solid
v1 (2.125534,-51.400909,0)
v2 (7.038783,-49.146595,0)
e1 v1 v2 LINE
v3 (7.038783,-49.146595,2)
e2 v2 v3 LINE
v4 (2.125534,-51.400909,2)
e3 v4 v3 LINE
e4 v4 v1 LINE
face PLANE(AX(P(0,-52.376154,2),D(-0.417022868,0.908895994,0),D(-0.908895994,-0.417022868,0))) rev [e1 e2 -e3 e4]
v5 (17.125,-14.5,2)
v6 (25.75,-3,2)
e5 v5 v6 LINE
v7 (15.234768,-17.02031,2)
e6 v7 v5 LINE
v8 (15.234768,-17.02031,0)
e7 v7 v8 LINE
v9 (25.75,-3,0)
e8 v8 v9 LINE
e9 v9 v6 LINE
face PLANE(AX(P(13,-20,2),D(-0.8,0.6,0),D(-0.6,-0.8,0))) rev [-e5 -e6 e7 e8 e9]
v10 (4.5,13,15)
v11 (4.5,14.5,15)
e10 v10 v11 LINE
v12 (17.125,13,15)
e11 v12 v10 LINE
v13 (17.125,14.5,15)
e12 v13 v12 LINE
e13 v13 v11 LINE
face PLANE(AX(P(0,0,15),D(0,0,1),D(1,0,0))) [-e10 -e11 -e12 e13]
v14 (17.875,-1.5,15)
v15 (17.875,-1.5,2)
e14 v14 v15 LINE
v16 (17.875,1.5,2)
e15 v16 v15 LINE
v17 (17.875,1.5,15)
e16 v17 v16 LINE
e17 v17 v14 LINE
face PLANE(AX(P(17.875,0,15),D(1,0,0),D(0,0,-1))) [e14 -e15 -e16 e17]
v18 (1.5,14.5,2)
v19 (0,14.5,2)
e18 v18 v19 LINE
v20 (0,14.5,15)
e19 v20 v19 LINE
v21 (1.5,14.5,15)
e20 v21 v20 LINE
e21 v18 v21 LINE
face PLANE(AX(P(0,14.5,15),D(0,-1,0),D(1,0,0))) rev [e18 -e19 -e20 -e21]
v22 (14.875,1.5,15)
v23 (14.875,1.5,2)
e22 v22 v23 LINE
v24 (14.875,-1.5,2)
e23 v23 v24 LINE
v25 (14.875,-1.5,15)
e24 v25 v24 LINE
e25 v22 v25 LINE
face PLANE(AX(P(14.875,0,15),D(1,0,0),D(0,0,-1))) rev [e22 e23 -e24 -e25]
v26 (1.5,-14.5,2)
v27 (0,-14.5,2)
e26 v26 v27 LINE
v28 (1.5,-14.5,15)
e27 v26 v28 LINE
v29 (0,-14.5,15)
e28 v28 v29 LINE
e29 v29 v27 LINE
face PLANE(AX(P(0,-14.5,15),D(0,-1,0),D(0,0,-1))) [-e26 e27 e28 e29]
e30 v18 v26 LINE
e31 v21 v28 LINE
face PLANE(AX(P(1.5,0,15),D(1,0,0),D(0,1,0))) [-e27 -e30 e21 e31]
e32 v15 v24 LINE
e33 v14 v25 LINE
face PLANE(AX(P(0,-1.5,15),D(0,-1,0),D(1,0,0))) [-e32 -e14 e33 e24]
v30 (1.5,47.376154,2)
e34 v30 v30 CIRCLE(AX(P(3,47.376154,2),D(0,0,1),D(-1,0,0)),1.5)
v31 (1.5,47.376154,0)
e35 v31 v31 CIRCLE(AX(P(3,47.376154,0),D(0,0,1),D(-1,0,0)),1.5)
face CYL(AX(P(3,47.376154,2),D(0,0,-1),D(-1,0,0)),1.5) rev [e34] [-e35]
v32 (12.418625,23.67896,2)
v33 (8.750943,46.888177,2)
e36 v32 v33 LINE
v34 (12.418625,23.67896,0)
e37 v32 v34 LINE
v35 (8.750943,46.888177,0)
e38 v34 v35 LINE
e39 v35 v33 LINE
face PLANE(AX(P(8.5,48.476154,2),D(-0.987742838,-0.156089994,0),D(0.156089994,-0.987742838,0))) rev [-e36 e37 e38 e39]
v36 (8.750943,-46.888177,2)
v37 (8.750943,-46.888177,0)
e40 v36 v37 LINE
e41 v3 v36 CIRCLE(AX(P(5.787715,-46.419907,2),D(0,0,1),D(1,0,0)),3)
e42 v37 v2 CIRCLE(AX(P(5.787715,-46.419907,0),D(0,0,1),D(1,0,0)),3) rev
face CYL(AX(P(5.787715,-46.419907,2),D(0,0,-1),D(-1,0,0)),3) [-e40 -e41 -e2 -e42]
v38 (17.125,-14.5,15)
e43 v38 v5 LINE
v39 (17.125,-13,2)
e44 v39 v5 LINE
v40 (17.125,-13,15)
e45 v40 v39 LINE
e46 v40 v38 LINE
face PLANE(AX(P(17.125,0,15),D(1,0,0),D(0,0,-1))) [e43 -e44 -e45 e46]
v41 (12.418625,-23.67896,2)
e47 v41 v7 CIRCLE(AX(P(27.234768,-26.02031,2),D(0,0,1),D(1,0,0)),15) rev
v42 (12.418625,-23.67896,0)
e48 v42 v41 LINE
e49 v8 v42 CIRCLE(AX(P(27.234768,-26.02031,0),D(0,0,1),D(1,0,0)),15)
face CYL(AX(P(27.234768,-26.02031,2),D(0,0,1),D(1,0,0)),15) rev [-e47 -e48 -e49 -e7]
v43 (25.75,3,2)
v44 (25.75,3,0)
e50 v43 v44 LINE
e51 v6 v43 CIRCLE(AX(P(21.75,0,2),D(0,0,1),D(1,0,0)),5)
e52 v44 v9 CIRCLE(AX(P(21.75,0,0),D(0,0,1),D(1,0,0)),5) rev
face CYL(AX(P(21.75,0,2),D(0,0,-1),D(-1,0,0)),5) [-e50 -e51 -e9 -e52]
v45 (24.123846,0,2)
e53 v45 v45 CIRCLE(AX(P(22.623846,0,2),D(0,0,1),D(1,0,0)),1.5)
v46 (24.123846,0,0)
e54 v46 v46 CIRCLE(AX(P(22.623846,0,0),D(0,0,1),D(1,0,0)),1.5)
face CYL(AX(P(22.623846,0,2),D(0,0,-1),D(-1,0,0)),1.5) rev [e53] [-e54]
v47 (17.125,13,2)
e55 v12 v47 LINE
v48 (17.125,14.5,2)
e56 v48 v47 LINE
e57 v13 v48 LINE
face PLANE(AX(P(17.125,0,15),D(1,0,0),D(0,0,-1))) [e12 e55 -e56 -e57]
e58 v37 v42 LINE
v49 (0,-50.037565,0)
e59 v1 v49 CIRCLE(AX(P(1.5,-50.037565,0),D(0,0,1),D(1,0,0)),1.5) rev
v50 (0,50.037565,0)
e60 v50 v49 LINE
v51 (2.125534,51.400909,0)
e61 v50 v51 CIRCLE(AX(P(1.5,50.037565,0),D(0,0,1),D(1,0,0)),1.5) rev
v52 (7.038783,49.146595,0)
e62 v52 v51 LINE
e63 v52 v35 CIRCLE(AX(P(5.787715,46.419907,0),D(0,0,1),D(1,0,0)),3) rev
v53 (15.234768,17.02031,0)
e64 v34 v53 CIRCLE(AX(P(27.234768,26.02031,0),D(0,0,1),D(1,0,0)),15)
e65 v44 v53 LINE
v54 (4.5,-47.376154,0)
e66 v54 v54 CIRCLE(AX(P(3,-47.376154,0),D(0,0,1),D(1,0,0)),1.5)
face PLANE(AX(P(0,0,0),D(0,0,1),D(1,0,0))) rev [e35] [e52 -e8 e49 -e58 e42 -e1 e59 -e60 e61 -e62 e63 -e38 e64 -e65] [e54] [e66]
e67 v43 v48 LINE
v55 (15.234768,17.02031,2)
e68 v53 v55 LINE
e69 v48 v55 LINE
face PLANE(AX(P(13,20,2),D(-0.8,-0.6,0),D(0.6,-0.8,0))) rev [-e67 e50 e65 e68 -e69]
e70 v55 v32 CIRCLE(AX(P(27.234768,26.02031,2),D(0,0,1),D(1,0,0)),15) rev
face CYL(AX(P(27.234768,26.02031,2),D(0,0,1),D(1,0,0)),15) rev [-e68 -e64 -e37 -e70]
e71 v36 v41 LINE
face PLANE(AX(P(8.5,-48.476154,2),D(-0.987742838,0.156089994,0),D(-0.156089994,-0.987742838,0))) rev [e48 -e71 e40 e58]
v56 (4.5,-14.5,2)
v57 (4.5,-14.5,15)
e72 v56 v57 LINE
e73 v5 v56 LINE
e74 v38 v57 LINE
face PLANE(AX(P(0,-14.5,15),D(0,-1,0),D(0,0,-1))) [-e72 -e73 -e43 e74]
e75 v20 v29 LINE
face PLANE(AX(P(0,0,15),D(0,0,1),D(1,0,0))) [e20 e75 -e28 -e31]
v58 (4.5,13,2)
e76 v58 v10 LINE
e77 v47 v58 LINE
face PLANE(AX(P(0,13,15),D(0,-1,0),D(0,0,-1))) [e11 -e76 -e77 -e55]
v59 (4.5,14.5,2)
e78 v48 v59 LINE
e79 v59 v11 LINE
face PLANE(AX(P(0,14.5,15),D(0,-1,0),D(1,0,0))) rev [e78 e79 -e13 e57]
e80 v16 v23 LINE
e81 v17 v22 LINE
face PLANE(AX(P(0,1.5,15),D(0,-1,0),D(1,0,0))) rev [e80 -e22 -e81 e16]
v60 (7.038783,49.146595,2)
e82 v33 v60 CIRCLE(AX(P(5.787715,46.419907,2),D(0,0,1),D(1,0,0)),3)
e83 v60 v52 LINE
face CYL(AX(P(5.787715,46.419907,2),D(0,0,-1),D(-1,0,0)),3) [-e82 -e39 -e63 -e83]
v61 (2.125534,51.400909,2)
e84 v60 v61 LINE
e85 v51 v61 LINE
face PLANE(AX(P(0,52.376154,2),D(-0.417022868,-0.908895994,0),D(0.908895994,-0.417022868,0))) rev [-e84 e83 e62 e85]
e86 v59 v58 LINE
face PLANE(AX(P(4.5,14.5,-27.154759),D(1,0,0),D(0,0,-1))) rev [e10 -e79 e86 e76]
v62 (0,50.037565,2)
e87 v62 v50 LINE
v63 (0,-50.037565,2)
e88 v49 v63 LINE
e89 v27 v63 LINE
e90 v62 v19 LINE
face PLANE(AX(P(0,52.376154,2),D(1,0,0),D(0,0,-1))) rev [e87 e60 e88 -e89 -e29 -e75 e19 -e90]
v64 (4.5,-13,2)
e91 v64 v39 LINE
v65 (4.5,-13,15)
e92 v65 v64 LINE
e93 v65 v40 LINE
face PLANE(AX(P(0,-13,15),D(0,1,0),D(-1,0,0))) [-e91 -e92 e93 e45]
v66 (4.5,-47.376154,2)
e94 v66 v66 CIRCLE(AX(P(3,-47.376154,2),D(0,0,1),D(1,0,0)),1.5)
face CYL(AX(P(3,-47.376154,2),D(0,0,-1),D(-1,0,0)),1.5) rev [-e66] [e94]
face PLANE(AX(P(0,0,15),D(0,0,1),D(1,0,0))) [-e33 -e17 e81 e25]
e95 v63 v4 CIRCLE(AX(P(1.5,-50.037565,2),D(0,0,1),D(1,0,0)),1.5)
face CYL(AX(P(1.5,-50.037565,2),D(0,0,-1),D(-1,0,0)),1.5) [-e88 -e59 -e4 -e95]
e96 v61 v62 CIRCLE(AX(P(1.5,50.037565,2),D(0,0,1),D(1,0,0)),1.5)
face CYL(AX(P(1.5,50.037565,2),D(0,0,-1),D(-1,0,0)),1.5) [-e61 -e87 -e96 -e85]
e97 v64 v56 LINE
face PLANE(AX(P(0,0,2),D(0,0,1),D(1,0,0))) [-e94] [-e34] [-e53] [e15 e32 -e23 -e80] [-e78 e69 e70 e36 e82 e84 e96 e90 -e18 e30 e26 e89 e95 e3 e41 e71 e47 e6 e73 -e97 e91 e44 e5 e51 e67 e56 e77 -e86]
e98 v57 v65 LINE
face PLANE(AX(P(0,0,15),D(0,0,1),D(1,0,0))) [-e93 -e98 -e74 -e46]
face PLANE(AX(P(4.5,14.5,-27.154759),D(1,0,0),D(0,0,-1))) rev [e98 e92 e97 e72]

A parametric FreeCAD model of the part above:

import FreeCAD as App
import Part
import Sketcher
Q = App.Units.Quantity


def edges_at(feature, points):
    """Names of the edges that pass closest to the given points."""
    edges = feature.Shape.Edges
    near = lambda p: min(range(len(edges)), key=lambda i: edges[i].distToShape(Part.Vertex(*p))[0])
    return sorted({f"Edge{near(p) + 1}" for p in points})

doc = App.newDocument("Part")
body = doc.addObject("PartDesign::Body", "Body")

sketch1 = doc.addObject("Sketcher::SketchObject", "Sketch")
body.addObject(sketch1)
sketch1.AttachmentSupport = (doc.XY_Plane, [""])
sketch1.MapMode = "FlatFace"
sketch1.addGeometry([
    Part.LineSegment(App.Vector(0, 52.4, 0), App.Vector(0, -52.4, 0)),
    Part.LineSegment(App.Vector(0, -52.4, 0), App.Vector(8.5, -48.5, 0)),
    Part.LineSegment(App.Vector(8.5, -48.5, 0), App.Vector(13, -20, 0)),
    Part.LineSegment(App.Vector(13, -20, 0), App.Vector(28, 0, 0)),
    Part.LineSegment(App.Vector(28, 0, 0), App.Vector(13, 20, 0)),
    Part.LineSegment(App.Vector(13, 20, 0), App.Vector(8.5, 48.5, 0)),
    Part.LineSegment(App.Vector(8.5, 48.5, 0), App.Vector(0, 52.4, 0)),
    Part.Circle(App.Vector(3, -47.4, 0), App.Vector(0, 0, 1), 1.5),
    Part.Circle(App.Vector(22.6, 0, 0), App.Vector(0, 0, 1), 1.5),
    Part.Circle(App.Vector(3, 47.4, 0), App.Vector(0, 0, 1), 1.5),
], False)
sketch1.addConstraint([
    Sketcher.Constraint("Coincident", 0, 2, 1, 1),
    Sketcher.Constraint("Coincident", 1, 2, 2, 1),
    Sketcher.Constraint("Coincident", 2, 2, 3, 1),
    Sketcher.Constraint("Coincident", 3, 2, 4, 1),
    Sketcher.Constraint("Coincident", 4, 2, 5, 1),
    Sketcher.Constraint("Coincident", 5, 2, 6, 1),
    Sketcher.Constraint("Coincident", 6, 2, 0, 1),
    Sketcher.Constraint("Vertical", 0),
    Sketcher.Constraint("Equal", 7, 8),
    Sketcher.Constraint("Equal", 8, 9),
    Sketcher.Constraint("Symmetric", 0, 2, 6, 2, -1, 1),
    Sketcher.Constraint("Symmetric", 7, 3, 9, 3, -1),
    Sketcher.Constraint("Symmetric", 2, 2, 4, 2, -1),
    Sketcher.Constraint("Symmetric", 1, 2, 5, 2, -1),
    Sketcher.Constraint("PointOnObject", 8, 3, -1),
    Sketcher.Constraint("PointOnObject", 3, 2, -1),
    Sketcher.Constraint("Diameter", 7, Q("3 mm")),
    Sketcher.Constraint("Distance", 3, Q("25 mm")),
    Sketcher.Constraint("DistanceX", -1, 1, 7, 3, Q("3 mm")),
    Sketcher.Constraint("DistanceX", -1, 1, 2, 2, Q("13 mm")),
    Sketcher.Constraint("DistanceY", 2, 2, -1, 1, Q("20 mm")),
    Sketcher.Constraint("DistanceY", 0, 2, 7, 3, Q("5 mm")),
    Sketcher.Constraint("DistanceX", -1, 1, 1, 2, Q("8.5 mm")),
    Sketcher.Constraint("Angle", 2, Q("81.019982 deg")),
    Sketcher.Constraint("DistanceY", 1, 2, 7, 3, Q("1.1 mm")),
    Sketcher.Constraint("DistanceX", -1, 1, 8, 3, Q("22.623846 mm")),
])
pad1 = doc.addObject("PartDesign::Pad", "Pad")
body.addObject(pad1)
pad1.Profile = sketch1
pad1.Length = 2
doc.recompute()

fillet = doc.addObject("PartDesign::Fillet", "Fillet")
body.addObject(fillet)
fillet.Base = (pad1, edges_at(pad1, [(13, 20, 1), (13, -20, 1)]))
fillet.Radius = 15
doc.recompute()

fillet2 = doc.addObject("PartDesign::Fillet", "Fillet001")
body.addObject(fillet2)
fillet2.Base = (fillet, edges_at(fillet, [(8.5, 48.476, 1), (8.5, -48.476, 1)]))
fillet2.Radius = 3
doc.recompute()

fillet3 = doc.addObject("PartDesign::Fillet", "Fillet002")
body.addObject(fillet3)
fillet3.Base = (fillet2, edges_at(fillet2, [(0, -52.376, 1), (0, 52.376, 1)]))
fillet3.Radius = 1.5
doc.recompute()

fillet4 = doc.addObject("PartDesign::Fillet", "Fillet003")
body.addObject(fillet4)
fillet4.Base = (fillet3, edges_at(fillet3, [(28, 0, 1)]))
fillet4.Radius = 5

sketch2 = doc.addObject("Sketcher::SketchObject", "Sketch001")
body.addObject(sketch2)
sketch2.AttachmentSupport = (doc.XY_Plane, [""])
sketch2.MapMode = "FlatFace"
sketch2.AttachmentOffset = App.Placement(App.Vector(0, 0, 2), App.Rotation())
sketch2.addGeometry([
    Part.LineSegment(App.Vector(17.1, 13, 0), App.Vector(17.1, 14.5, 0)),
    Part.LineSegment(App.Vector(17.1, 14.5, 0), App.Vector(0, 14.5, 0)),
    Part.LineSegment(App.Vector(0, 14.5, 0), App.Vector(0, -14.5, 0)),
    Part.LineSegment(App.Vector(0, -14.5, 0), App.Vector(17.1, -14.5, 0)),
    Part.LineSegment(App.Vector(17.1, -14.5, 0), App.Vector(17.1, -13, 0)),
    Part.LineSegment(App.Vector(17.1, -13, 0), App.Vector(1.5, -13, 0)),
    Part.LineSegment(App.Vector(1.5, -13, 0), App.Vector(1.5, 13, 0)),
    Part.LineSegment(App.Vector(1.5, 13, 0), App.Vector(17.1, 13, 0)),
    Part.LineSegment(App.Vector(17.9, -1.5, 0), App.Vector(17.9, 1.5, 0)),
    Part.LineSegment(App.Vector(17.9, 1.5, 0), App.Vector(14.9, 1.5, 0)),
    Part.LineSegment(App.Vector(14.9, 1.5, 0), App.Vector(14.9, -1.5, 0)),
    Part.LineSegment(App.Vector(14.9, -1.5, 0), App.Vector(17.9, -1.5, 0)),
], False)
sketch2.addConstraint([
    Sketcher.Constraint("Coincident", 0, 2, 1, 1),
    Sketcher.Constraint("Coincident", 1, 2, 2, 1),
    Sketcher.Constraint("Coincident", 2, 2, 3, 1),
    Sketcher.Constraint("Coincident", 3, 2, 4, 1),
    Sketcher.Constraint("Coincident", 4, 2, 5, 1),
    Sketcher.Constraint("Coincident", 5, 2, 6, 1),
    Sketcher.Constraint("Coincident", 6, 2, 7, 1),
    Sketcher.Constraint("Coincident", 7, 2, 0, 1),
    Sketcher.Constraint("Coincident", 8, 2, 9, 1),
    Sketcher.Constraint("Coincident", 9, 2, 10, 1),
    Sketcher.Constraint("Coincident", 10, 2, 11, 1),
    Sketcher.Constraint("Coincident", 11, 2, 8, 1),
    Sketcher.Constraint("Vertical", 0),
    Sketcher.Constraint("Horizontal", 1),
    Sketcher.Constraint("Vertical", 2),
    Sketcher.Constraint("Horizontal", 3),
    Sketcher.Constraint("Vertical", 4),
    Sketcher.Constraint("Horizontal", 5),
    Sketcher.Constraint("Vertical", 6),
    Sketcher.Constraint("Horizontal", 7),
    Sketcher.Constraint("Vertical", 8),
    Sketcher.Constraint("Horizontal", 9),
    Sketcher.Constraint("Vertical", 10),
    Sketcher.Constraint("Horizontal", 11),
    Sketcher.Constraint("Symmetric", 1, 2, 2, 2, -1, 1),
    Sketcher.Constraint("Symmetric", 4, 2, 7, 2, -1),
    Sketcher.Constraint("Equal", 11, 8),
    Sketcher.Constraint("DistanceX", 9, 2, 9, 1, Q("3 mm")),
    Sketcher.Constraint("DistanceY", 2, 2, 2, 1, Q("29 mm")),
    Sketcher.Constraint("DistanceY", 6, 1, 6, 2, Q("26 mm")),
    Sketcher.Constraint("DistanceY", 8, 2, 0, 2, Q("13 mm")),
    Sketcher.Constraint("DistanceX", -1, 1, 5, 2, Q("1.5 mm")),
    Sketcher.Constraint("DistanceX", 1, 2, 1, 1, Q("17.125 mm")),
    Sketcher.Constraint("DistanceX", 7, 2, 8, 2, Q("0.75 mm")),
])
pad2 = doc.addObject("PartDesign::Pad", "Pad001")
body.addObject(pad2)
pad2.Profile = sketch2
pad2.Length = 13

sketch3 = doc.addObject("Sketcher::SketchObject", "Sketch002")
body.addObject(sketch3)
sketch3.AttachmentSupport = (doc.XY_Plane, [""])
sketch3.MapMode = "FlatFace"
sketch3.AttachmentOffset = App.Placement(App.Vector(0, 0, 15), App.Rotation())
sketch3.addGeometry([
    Part.LineSegment(App.Vector(1.5, 14.5, 0), App.Vector(1.5, -14.5, 0)),
    Part.LineSegment(App.Vector(1.5, -14.5, 0), App.Vector(4.5, -14.5, 0)),
    Part.LineSegment(App.Vector(4.5, -14.5, 0), App.Vector(4.5, 14.5, 0)),
    Part.LineSegment(App.Vector(4.5, 14.5, 0), App.Vector(1.5, 14.5, 0)),
], False)
sketch3.addConstraint([
    Sketcher.Constraint("Coincident", 0, 2, 1, 1),
    Sketcher.Constraint("Coincident", 1, 2, 2, 1),
    Sketcher.Constraint("Coincident", 2, 2, 3, 1),
    Sketcher.Constraint("Coincident", 3, 2, 0, 1),
    Sketcher.Constraint("Vertical", 0),
    Sketcher.Constraint("Horizontal", 1),
    Sketcher.Constraint("Vertical", 2),
    Sketcher.Constraint("Horizontal", 3),
    Sketcher.Constraint("DistanceX", 1, 1, 1, 2, Q("3 mm")),
    Sketcher.Constraint("DistanceY", 0, 2, 0, 1, Q("29 mm")),
    Sketcher.Constraint("DistanceX", -1, 1, 0, 2, Q("1.5 mm")),
    Sketcher.Constraint("DistanceY", 0, 2, -1, 1, Q("14.5 mm")),
])
pocket1 = doc.addObject("PartDesign::Pocket", "Pocket")
body.addObject(pocket1)
pocket1.Profile = sketch3
pocket1.Length = 13

doc.recompute()
